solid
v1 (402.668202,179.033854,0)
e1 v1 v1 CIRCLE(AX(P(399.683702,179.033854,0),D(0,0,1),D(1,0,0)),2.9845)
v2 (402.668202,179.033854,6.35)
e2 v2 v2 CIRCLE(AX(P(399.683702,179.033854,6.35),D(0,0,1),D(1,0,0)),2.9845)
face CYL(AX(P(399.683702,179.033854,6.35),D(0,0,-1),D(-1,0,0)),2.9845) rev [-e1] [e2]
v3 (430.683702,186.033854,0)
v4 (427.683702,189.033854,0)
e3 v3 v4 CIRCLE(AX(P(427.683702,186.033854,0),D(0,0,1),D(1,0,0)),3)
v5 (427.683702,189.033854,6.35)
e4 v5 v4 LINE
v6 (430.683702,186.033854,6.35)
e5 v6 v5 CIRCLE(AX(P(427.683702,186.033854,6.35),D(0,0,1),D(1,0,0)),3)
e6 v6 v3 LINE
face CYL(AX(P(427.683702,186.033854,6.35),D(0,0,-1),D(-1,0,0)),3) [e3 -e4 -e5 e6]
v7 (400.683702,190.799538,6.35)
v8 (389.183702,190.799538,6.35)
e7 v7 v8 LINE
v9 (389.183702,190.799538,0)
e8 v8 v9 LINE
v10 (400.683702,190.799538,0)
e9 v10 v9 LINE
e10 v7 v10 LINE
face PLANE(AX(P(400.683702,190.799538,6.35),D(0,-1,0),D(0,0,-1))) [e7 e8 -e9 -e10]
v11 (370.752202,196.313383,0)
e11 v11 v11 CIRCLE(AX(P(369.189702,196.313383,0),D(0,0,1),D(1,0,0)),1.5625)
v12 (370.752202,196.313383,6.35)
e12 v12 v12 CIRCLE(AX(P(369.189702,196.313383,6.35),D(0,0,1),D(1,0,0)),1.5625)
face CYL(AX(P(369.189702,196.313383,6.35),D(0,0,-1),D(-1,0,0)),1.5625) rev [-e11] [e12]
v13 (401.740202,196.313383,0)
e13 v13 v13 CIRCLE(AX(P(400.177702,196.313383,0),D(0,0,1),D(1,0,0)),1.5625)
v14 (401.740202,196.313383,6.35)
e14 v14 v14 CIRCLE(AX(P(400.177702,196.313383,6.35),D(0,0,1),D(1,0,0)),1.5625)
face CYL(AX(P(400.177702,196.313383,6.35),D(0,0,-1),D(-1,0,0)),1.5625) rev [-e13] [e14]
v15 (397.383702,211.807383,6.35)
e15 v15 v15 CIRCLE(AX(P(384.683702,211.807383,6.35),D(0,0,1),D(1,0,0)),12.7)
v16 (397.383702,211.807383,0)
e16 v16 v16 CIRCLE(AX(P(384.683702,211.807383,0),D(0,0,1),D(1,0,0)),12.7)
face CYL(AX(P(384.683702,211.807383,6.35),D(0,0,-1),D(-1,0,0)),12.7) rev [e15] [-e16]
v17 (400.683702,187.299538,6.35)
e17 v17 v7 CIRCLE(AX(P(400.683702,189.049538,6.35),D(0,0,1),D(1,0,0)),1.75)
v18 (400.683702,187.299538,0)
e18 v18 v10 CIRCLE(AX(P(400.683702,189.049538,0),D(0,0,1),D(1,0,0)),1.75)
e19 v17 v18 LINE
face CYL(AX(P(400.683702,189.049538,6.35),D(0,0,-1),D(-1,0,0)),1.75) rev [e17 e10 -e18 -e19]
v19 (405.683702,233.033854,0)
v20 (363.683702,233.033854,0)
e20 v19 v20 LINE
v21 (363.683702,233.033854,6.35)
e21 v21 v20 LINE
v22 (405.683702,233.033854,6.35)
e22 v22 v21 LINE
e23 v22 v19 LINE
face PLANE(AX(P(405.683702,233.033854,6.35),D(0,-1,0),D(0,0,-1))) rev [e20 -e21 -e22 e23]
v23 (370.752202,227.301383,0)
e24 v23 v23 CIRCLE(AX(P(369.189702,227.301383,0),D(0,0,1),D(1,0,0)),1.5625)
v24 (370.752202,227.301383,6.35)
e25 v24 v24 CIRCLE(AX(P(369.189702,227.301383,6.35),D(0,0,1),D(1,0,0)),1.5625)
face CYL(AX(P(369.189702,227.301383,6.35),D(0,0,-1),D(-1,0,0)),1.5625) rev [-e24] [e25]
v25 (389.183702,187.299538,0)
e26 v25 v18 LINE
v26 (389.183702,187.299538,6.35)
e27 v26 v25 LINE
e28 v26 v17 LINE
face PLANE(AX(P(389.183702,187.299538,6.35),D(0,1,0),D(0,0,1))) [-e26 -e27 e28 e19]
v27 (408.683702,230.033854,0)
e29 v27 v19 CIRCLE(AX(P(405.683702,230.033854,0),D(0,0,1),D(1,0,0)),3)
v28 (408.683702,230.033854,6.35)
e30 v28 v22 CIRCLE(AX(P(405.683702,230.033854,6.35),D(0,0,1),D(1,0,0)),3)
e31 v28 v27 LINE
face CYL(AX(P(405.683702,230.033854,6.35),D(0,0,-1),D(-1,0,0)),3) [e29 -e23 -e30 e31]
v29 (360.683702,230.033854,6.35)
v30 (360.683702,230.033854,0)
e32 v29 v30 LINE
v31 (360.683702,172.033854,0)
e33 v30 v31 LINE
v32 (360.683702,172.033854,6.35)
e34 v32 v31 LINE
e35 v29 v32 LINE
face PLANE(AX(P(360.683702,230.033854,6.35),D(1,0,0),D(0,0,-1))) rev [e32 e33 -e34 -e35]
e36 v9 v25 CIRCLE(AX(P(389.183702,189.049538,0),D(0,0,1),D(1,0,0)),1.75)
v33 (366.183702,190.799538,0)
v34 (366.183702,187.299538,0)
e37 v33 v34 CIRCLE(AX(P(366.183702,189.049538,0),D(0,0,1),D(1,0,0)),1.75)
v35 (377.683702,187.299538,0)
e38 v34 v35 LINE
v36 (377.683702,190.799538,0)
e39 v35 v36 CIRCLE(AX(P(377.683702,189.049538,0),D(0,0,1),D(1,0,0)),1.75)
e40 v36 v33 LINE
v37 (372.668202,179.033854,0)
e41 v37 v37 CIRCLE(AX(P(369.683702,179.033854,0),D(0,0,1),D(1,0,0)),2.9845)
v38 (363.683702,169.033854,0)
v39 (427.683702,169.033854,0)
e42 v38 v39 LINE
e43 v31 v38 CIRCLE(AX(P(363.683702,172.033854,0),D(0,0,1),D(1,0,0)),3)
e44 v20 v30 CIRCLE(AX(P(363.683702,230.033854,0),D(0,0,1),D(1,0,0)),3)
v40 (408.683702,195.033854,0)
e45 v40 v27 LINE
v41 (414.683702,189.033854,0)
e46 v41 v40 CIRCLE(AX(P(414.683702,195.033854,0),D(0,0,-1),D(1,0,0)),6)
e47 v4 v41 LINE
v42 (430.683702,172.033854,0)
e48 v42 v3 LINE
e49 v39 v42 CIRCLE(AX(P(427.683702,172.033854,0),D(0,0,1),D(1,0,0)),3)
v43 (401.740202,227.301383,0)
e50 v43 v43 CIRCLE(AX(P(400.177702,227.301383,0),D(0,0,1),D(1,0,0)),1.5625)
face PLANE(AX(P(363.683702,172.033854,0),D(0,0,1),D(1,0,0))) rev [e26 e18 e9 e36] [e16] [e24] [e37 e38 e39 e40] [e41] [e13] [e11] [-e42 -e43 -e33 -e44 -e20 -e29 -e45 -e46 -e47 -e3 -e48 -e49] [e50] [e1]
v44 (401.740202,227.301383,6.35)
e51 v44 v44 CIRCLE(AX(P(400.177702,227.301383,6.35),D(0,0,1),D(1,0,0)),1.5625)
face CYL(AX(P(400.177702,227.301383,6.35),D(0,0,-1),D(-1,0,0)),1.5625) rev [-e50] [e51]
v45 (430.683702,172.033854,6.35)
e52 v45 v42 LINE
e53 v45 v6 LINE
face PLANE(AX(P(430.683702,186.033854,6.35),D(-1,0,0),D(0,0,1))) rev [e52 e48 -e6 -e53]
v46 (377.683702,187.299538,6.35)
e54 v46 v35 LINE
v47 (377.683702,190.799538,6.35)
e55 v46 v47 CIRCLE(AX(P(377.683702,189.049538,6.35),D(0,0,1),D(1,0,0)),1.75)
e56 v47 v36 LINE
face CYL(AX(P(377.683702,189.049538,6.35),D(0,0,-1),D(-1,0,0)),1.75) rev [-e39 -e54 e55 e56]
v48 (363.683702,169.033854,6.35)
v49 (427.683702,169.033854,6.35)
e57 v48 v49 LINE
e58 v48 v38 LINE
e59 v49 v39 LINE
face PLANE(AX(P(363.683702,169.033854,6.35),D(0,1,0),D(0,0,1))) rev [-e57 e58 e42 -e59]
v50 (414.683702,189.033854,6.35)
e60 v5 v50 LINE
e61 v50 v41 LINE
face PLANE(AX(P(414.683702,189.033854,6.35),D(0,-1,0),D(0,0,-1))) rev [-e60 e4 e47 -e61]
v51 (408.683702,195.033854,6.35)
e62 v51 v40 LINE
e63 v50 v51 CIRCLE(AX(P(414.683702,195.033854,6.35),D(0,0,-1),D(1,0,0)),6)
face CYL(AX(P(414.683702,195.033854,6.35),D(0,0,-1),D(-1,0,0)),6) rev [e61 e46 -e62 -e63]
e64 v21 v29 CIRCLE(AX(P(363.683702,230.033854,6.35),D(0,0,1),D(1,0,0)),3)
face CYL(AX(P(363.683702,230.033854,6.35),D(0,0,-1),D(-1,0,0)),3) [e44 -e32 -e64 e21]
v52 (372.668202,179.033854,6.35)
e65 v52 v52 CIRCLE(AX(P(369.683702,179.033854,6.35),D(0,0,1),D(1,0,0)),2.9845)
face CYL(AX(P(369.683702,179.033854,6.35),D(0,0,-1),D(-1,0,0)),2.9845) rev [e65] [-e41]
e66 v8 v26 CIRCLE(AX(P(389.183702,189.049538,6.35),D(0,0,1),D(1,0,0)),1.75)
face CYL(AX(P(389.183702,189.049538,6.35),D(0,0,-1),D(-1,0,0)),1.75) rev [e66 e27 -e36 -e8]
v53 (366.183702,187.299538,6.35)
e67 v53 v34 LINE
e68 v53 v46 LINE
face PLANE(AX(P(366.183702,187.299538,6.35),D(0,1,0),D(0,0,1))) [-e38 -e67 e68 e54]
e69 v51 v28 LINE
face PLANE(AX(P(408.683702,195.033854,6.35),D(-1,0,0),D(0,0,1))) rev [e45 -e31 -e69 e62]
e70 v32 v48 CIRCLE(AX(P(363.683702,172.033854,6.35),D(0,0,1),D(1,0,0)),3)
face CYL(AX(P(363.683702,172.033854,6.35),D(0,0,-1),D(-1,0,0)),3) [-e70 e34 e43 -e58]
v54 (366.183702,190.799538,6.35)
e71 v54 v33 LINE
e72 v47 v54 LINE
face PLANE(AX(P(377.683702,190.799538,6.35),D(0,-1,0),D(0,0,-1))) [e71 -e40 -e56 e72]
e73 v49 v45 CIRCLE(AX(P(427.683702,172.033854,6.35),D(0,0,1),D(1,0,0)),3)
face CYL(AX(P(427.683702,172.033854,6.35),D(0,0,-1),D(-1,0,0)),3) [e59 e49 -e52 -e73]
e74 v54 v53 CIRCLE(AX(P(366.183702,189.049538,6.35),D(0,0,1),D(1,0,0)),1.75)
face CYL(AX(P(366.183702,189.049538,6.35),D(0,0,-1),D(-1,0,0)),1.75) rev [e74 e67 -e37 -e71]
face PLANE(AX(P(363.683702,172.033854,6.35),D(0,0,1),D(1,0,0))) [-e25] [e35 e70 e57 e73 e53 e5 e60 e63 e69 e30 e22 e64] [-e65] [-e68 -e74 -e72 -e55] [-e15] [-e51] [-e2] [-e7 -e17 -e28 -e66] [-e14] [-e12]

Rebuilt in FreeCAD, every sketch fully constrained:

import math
import FreeCAD as App
import Part
import Sketcher
Q = App.Units.Quantity

doc = App.newDocument("Part")
params = doc.addObject("Spreadsheet::Sheet", "Params")
for row, (alias, value) in enumerate([
    ("sketch1_radius", "3 mm"),
    ("sketch1_radius2", "6 mm"),
    ("sketch1_diameter", "25.4 mm"),
    ("sketch1_width", "64 mm"),
    ("sketch1_width2", "13 mm"),
    ("pad1_length", "6.35 mm"),
], start=1):
    params.set(f"A{row}", alias)
    params.set(f"B{row}", "=" + value)
    params.setAlias(f"B{row}", alias)

body = doc.addObject("PartDesign::Body", "Body")

sketch1 = body.newObject("Sketcher::SketchObject", "Sketch")
sketch1.AttachmentSupport = (doc.getObject("XY_Plane"), [""])
sketch1.MapMode = "FlatFace"
sketch1.addGeometry(Part.LineSegment(App.Vector(363.683702, 169.033854, 0), App.Vector(427.683702, 169.033854, 0)), False)
sketch1.addGeometry(Part.ArcOfCircle(Part.Circle(App.Vector(427.683702, 172.033854, 0), App.Vector(0, 0, 1), 3), math.radians(-90), math.radians(0)), False)
sketch1.addGeometry(Part.LineSegment(App.Vector(430.683702, 172.033854, 0), App.Vector(430.683702, 186.033854, 0)), False)
sketch1.addGeometry(Part.ArcOfCircle(Part.Circle(App.Vector(427.683702, 186.033854, 0), App.Vector(0, 0, 1), 3), math.radians(0), math.radians(90)), False)
sketch1.addGeometry(Part.LineSegment(App.Vector(427.683702, 189.033854, 0), App.Vector(414.683702, 189.033854, 0)), False)
sketch1.addGeometry(Part.ArcOfCircle(Part.Circle(App.Vector(414.683702, 195.033854, 0), App.Vector(0, 0, 1), 6), math.radians(180), math.radians(270)), False)
sketch1.addGeometry(Part.LineSegment(App.Vector(408.683702, 195.033854, 0), App.Vector(408.683702, 230.033854, 0)), False)
sketch1.addGeometry(Part.ArcOfCircle(Part.Circle(App.Vector(405.683702, 230.033854, 0), App.Vector(0, 0, 1), 3), math.radians(0), math.radians(90)), False)
sketch1.addGeometry(Part.LineSegment(App.Vector(405.683702, 233.033854, 0), App.Vector(363.683702, 233.033854, 0)), False)
sketch1.addGeometry(Part.ArcOfCircle(Part.Circle(App.Vector(363.683702, 230.033854, 0), App.Vector(0, 0, 1), 3), math.radians(90), math.radians(180)), False)
sketch1.addGeometry(Part.LineSegment(App.Vector(360.683702, 230.033854, 0), App.Vector(360.683702, 172.033854, 0)), False)
sketch1.addGeometry(Part.ArcOfCircle(Part.Circle(App.Vector(363.683702, 172.033854, 0), App.Vector(0, 0, 1), 3), math.radians(180), math.radians(270)), False)
sketch1.addGeometry(Part.Circle(App.Vector(369.683702, 179.033854, 0), App.Vector(0, 0, 1), 2.9845), False)
sketch1.addGeometry(Part.LineSegment(App.Vector(377.683702, 187.299538, 0), App.Vector(366.183702, 187.299538, 0)), False)
sketch1.addGeometry(Part.ArcOfCircle(Part.Circle(App.Vector(366.183702, 189.049538, 0), App.Vector(0, 0, 1), 1.75), math.radians(90), math.radians(270)), False)
sketch1.addGeometry(Part.LineSegment(App.Vector(366.183702, 190.799538, 0), App.Vector(377.683702, 190.799538, 0)), False)
sketch1.addGeometry(Part.ArcOfCircle(Part.Circle(App.Vector(377.683702, 189.049538, 0), App.Vector(0, 0, 1), 1.75), math.radians(-90), math.radians(90)), False)
sketch1.addGeometry(Part.Circle(App.Vector(369.189702, 196.313383, 0), App.Vector(0, 0, 1), 1.5625), False)
sketch1.addGeometry(Part.Circle(App.Vector(399.683702, 179.033854, 0), App.Vector(0, 0, 1), 2.9845), False)
sketch1.addGeometry(Part.LineSegment(App.Vector(400.683702, 187.299538, 0), App.Vector(389.183702, 187.299538, 0)), False)
sketch1.addGeometry(Part.ArcOfCircle(Part.Circle(App.Vector(389.183702, 189.049538, 0), App.Vector(0, 0, 1), 1.75), math.radians(90), math.radians(270)), False)
sketch1.addGeometry(Part.LineSegment(App.Vector(389.183702, 190.799538, 0), App.Vector(400.683702, 190.799538, 0)), False)
sketch1.addGeometry(Part.ArcOfCircle(Part.Circle(App.Vector(400.683702, 189.049538, 0), App.Vector(0, 0, 1), 1.75), math.radians(-90), math.radians(90)), False)
sketch1.addGeometry(Part.Circle(App.Vector(400.177702, 196.313383, 0), App.Vector(0, 0, 1), 1.5625), False)
sketch1.addGeometry(Part.Circle(App.Vector(369.189702, 227.301383, 0), App.Vector(0, 0, 1), 1.5625), False)
sketch1.addGeometry(Part.Circle(App.Vector(384.683702, 211.807383, 0), App.Vector(0, 0, 1), 12.7), False)
sketch1.addGeometry(Part.Circle(App.Vector(400.177702, 227.301383, 0), App.Vector(0, 0, 1), 1.5625), False)
sketch1.addConstraint(Sketcher.Constraint("Tangent", 0, 2, 1, 1))
sketch1.addConstraint(Sketcher.Constraint("Tangent", 1, 2, 2, 1))
sketch1.addConstraint(Sketcher.Constraint("Tangent", 2, 2, 3, 1))
sketch1.addConstraint(Sketcher.Constraint("Tangent", 3, 2, 4, 1))
sketch1.addConstraint(Sketcher.Constraint("Tangent", 4, 2, 5, 2))
sketch1.addConstraint(Sketcher.Constraint("Tangent", 5, 1, 6, 1))
sketch1.addConstraint(Sketcher.Constraint("Tangent", 6, 2, 7, 1))
sketch1.addConstraint(Sketcher.Constraint("Tangent", 7, 2, 8, 1))
sketch1.addConstraint(Sketcher.Constraint("Tangent", 8, 2, 9, 1))
sketch1.addConstraint(Sketcher.Constraint("Tangent", 9, 2, 10, 1))
sketch1.addConstraint(Sketcher.Constraint("Tangent", 10, 2, 11, 1))
sketch1.addConstraint(Sketcher.Constraint("Tangent", 11, 2, 0, 1))
sketch1.addConstraint(Sketcher.Constraint("Tangent", 13, 2, 14, 2))
sketch1.addConstraint(Sketcher.Constraint("Tangent", 14, 1, 15, 1))
sketch1.addConstraint(Sketcher.Constraint("Tangent", 15, 2, 16, 2))
sketch1.addConstraint(Sketcher.Constraint("Tangent", 16, 1, 13, 1))
sketch1.addConstraint(Sketcher.Constraint("Tangent", 19, 2, 20, 2))
sketch1.addConstraint(Sketcher.Constraint("Tangent", 20, 1, 21, 1))
sketch1.addConstraint(Sketcher.Constraint("Tangent", 21, 2, 22, 2))
sketch1.addConstraint(Sketcher.Constraint("Tangent", 22, 1, 19, 1))
sketch1.addConstraint(Sketcher.Constraint("Horizontal", 0))
sketch1.addConstraint(Sketcher.Constraint("Vertical", 2))
sketch1.addConstraint(Sketcher.Constraint("Horizontal", 4))
sketch1.addConstraint(Sketcher.Constraint("Vertical", 6))
sketch1.addConstraint(Sketcher.Constraint("Horizontal", 8))
sketch1.addConstraint(Sketcher.Constraint("Vertical", 10))
sketch1.addConstraint(Sketcher.Constraint("Horizontal", 13))
sketch1.addConstraint(Sketcher.Constraint("Horizontal", 15))
sketch1.addConstraint(Sketcher.Constraint("Horizontal", 19))
sketch1.addConstraint(Sketcher.Constraint("Horizontal", 21))
sketch1.addConstraint(Sketcher.Constraint("Equal", 1, 3))
sketch1.addConstraint(Sketcher.Constraint("Equal", 3, 7))
sketch1.addConstraint(Sketcher.Constraint("Equal", 7, 9))
sketch1.addConstraint(Sketcher.Constraint("Equal", 9, 11))
sketch1.addConstraint(Sketcher.Constraint("Equal", 12, 18))
sketch1.addConstraint(Sketcher.Constraint("Equal", 16, 20))
sketch1.addConstraint(Sketcher.Constraint("Equal", 17, 23))
sketch1.addConstraint(Sketcher.Constraint("Equal", 23, 24))
sketch1.addConstraint(Sketcher.Constraint("Equal", 24, 26))
sketch1.addConstraint(Sketcher.Constraint("Horizontal", 12, 3, 18, 3))
sketch1.addConstraint(Sketcher.Constraint("Horizontal", 16, 3, 20, 3))
sketch1.addConstraint(Sketcher.Constraint("Horizontal", 17, 3, 23, 3))
sketch1.addConstraint(Sketcher.Constraint("Horizontal", 24, 3, 26, 3))
sketch1.addConstraint(Sketcher.Constraint("Vertical", 17, 3, 24, 3))
sketch1.addConstraint(Sketcher.Constraint("Vertical", 23, 3, 26, 3))
sketch1.addConstraint(Sketcher.Constraint("Equal", 15, 19))
sketch1.addConstraint(Sketcher.Constraint("Radius", 1, Q("3 mm")))
sketch1.addConstraint(Sketcher.Constraint("Radius", 5, Q("6 mm")))
sketch1.addConstraint(Sketcher.Constraint("Diameter", 25, Q("25.4 mm")))
sketch1.addConstraint(Sketcher.Constraint("DistanceX", 0, 1, 0, 2, Q("64 mm")))
sketch1.addConstraint(Sketcher.Constraint("DistanceX", 4, 2, 4, 1, Q("13 mm")))
sketch1.addConstraint(Sketcher.Constraint("DistanceY", 2, 1, 2, 2, Q("14 mm")))
sketch1.addConstraint(Sketcher.Constraint("DistanceY", 6, 1, 6, 2, Q("35 mm")))
sketch1.addConstraint(Sketcher.Constraint("Radius", 14, Q("1.75 mm")))
sketch1.addConstraint(Sketcher.Constraint("Diameter", 12, Q("5.969 mm")))
sketch1.addConstraint(Sketcher.Constraint("Diameter", 17, Q("3.125 mm")))
sketch1.addConstraint(Sketcher.Constraint("DistanceX", 13, 2, 13, 1, Q("11.5 mm")))
sketch1.addConstraint(Sketcher.Constraint("DistanceX", 11, 3, 12, 3, Q("6 mm")))
sketch1.addConstraint(Sketcher.Constraint("DistanceY", 11, 3, 12, 3, Q("7 mm")))
sketch1.addConstraint(Sketcher.Constraint("DistanceX", 12, 3, 16, 3, Q("8 mm")))
sketch1.addConstraint(Sketcher.Constraint("DistanceX", 18, 3, 5, 3, Q("15 mm")))
sketch1.addConstraint(Sketcher.Constraint("DistanceX", 14, 3, 20, 3, Q("23 mm")))
sketch1.addConstraint(Sketcher.Constraint("DistanceX", 16, 3, 25, 3, Q("7 mm")))
sketch1.addConstraint(Sketcher.Constraint("DistanceX", 14, 3, 17, 3, Q("3.006 mm")))
sketch1.addConstraint(Sketcher.Constraint("DistanceX", 23, 3, 22, 3, Q("0.506 mm")))
sketch1.addConstraint(Sketcher.Constraint("DistanceY", 17, 3, 24, 3, Q("30.988 mm")))
sketch1.addConstraint(Sketcher.Constraint("DistanceY", 23, 3, 25, 3, Q("15.494 mm")))
sketch1.addConstraint(Sketcher.Constraint("DistanceX", -1, 1, 1, 3, Q("427.683702 mm")))
sketch1.addConstraint(Sketcher.Constraint("DistanceY", -1, 1, 14, 3, Q("189.049538 mm")))
sketch1.addConstraint(Sketcher.Constraint("DistanceY", 12, 3, 17, 3, Q("17.279529 mm")))
sketch1.addConstraint(Sketcher.Constraint("DistanceY", -1, 1, 1, 3, Q("172.033854 mm")))
sketch1.setExpression("Constraints[46]", "Params.sketch1_radius")
sketch1.setExpression("Constraints[47]", "Params.sketch1_radius2")
sketch1.setExpression("Constraints[48]", "Params.sketch1_diameter")
sketch1.setExpression("Constraints[49]", "Params.sketch1_width")
sketch1.setExpression("Constraints[50]", "Params.sketch1_width2")
pad1 = body.newObject("PartDesign::Pad", "Pad")
pad1.Profile = sketch1
pad1.setExpression("Length", "Params.pad1_length")

doc.recompute()
